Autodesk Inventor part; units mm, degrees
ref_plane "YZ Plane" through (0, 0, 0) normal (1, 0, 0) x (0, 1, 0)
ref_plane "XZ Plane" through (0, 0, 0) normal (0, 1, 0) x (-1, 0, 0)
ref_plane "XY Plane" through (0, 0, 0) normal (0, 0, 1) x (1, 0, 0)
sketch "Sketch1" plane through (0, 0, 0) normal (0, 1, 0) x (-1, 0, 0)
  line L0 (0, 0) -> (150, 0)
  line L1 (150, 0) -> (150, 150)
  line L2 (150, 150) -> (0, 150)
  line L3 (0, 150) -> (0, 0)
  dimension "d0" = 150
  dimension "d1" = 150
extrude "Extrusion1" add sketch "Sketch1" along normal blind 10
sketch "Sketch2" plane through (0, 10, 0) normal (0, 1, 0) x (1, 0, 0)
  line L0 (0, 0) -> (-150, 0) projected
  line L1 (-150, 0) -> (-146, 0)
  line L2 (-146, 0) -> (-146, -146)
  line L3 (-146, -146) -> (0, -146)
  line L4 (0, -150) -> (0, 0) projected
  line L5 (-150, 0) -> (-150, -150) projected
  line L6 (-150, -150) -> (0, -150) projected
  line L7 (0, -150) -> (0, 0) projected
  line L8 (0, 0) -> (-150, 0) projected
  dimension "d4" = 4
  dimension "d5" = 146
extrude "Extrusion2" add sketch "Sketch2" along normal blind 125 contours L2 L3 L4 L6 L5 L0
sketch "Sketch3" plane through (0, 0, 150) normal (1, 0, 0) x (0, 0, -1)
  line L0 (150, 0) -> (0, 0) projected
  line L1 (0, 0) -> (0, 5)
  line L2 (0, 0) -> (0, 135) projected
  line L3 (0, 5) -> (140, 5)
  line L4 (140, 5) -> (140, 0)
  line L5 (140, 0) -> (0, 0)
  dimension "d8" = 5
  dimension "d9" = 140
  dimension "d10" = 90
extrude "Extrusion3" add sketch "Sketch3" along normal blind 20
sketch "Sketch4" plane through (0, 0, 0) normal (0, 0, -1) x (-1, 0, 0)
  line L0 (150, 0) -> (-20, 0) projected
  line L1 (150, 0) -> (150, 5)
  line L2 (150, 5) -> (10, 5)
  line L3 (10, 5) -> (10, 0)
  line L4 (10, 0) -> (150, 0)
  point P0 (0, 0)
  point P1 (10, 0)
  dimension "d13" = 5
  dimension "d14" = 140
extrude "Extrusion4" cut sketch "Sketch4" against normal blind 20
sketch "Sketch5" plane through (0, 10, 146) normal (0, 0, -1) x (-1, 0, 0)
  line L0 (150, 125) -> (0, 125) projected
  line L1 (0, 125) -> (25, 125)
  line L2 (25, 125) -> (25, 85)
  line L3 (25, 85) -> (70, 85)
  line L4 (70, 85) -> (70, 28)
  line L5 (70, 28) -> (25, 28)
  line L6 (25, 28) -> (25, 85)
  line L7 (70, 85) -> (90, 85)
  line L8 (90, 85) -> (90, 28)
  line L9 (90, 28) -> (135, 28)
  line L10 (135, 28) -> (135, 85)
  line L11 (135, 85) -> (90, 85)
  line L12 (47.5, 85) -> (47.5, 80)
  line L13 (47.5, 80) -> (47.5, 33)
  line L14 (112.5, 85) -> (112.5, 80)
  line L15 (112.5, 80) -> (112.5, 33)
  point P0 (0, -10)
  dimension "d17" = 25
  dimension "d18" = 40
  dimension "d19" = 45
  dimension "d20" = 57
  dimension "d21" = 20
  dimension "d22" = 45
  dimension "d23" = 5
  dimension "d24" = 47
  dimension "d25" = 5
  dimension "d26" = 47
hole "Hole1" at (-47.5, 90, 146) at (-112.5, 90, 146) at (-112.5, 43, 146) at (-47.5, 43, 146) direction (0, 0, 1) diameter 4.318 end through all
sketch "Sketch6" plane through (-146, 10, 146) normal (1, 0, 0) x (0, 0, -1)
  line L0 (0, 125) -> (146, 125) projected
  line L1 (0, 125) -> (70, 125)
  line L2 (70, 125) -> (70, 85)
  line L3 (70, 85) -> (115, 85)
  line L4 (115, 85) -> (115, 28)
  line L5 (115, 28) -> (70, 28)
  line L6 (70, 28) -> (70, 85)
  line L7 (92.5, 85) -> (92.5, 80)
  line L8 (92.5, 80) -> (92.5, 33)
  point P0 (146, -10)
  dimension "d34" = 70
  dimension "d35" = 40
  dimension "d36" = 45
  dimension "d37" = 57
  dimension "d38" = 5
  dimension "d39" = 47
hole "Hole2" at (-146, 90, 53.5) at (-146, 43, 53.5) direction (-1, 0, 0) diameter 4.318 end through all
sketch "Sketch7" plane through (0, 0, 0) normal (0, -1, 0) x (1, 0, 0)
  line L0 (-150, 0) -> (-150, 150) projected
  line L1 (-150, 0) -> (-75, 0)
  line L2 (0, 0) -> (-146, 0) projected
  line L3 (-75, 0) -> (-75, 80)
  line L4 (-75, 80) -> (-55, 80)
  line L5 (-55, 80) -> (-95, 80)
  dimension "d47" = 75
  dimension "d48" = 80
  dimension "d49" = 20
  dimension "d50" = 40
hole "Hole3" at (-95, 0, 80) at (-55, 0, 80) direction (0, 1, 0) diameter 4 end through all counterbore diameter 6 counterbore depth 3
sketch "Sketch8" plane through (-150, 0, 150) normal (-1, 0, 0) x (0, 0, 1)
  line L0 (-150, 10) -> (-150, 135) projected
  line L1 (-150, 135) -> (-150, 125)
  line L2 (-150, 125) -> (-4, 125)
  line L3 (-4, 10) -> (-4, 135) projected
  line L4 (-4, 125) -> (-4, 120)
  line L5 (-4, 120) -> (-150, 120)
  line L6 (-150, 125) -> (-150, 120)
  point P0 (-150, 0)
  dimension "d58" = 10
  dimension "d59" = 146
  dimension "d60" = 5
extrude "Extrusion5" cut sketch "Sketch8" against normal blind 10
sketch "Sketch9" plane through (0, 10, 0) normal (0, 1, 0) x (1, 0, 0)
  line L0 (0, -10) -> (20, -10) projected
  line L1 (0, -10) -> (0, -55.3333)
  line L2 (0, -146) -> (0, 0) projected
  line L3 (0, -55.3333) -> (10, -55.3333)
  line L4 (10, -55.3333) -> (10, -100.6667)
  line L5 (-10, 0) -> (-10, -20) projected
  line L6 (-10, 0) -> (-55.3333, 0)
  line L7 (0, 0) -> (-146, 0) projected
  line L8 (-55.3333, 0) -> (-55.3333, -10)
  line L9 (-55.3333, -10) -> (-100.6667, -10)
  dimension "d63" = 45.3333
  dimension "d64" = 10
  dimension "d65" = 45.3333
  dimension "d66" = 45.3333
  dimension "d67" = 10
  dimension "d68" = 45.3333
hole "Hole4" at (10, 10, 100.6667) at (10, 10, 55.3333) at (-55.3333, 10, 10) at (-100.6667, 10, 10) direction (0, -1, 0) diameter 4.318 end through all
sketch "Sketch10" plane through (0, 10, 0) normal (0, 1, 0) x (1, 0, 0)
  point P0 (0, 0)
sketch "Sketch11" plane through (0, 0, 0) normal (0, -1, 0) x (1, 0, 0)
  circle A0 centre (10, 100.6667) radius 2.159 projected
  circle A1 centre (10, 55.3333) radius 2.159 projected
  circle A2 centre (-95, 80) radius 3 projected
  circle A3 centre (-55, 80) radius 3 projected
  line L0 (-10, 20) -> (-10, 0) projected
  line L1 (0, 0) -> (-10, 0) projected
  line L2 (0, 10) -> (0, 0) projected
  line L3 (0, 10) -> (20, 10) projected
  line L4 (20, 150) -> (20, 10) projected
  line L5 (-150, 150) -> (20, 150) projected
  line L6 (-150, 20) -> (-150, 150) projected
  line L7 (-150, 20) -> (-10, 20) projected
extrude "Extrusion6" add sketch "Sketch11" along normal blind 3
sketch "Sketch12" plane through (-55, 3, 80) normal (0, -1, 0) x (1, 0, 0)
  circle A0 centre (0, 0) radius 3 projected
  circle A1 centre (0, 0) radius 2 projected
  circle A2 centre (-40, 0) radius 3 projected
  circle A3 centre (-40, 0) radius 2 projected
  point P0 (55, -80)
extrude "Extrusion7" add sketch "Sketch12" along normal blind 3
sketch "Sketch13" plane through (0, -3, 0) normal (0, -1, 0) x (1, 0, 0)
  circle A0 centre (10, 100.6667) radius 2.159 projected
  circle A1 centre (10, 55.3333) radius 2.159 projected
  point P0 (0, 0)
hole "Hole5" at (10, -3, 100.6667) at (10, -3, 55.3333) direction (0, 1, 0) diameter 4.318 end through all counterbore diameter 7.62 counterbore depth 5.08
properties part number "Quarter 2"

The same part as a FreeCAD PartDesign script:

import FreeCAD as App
import Part
import Sketcher

doc = App.newDocument("Part")
params = doc.addObject("Spreadsheet::Sheet", "Params")
for row, (alias, value) in enumerate([
    ("sketch1_width", "150 mm"),
    ("pad1_length", "10 mm"),
    ("sketch2_width", "4 mm"),
    ("sketch2_width2", "146 mm"),
    ("pad2_length", "125 mm"),
    ("sketch3_width", "5 mm"),
    ("sketch3_height", "140 mm"),
    ("pad3_length", "20 mm"),
    ("sketch4_width", "140 mm"),
    ("sketch4_height", "5 mm"),
    ("pocket1_length", "20 mm"),
    ("hole_diameter", "4.318 mm"),
    ("hole2_diameter", "4.318 mm"),
    ("sketch7_diameter", "4 mm"),
    ("hole3_diameter", "4 mm"),
    ("hole3_cbore_diameter", "6 mm"),
    ("hole3_cbore_depth", "3 mm"),
    ("sketch8_width", "5 mm"),
    ("sketch8_height", "146 mm"),
    ("pocket2_length", "10 mm"),
    ("hole4_diameter", "4.318 mm"),
    ("sketch10_diameter", "6 mm"),
    ("sketch10_width", "140 mm"),
    ("sketch10_width2", "10 mm"),
    ("sketch10_width3", "20 mm"),
    ("pad4_length", "3 mm"),
    ("sketch11_diameter", "6 mm"),
    ("sketch11_diameter2", "4 mm"),
    ("pad5_length", "3 mm"),
    ("hole5_diameter", "4.318 mm"),
    ("hole5_cbore_diameter", "7.62 mm"),
    ("hole5_cbore_depth", "5.08 mm"),
], start=1):
    params.set(f"A{row}", alias)
    params.set(f"B{row}", "=" + value)
    params.setAlias(f"B{row}", alias)

body = doc.addObject("PartDesign::Body", "Body")

sketch1 = doc.addObject("Sketcher::SketchObject", "Sketch")
body.addObject(sketch1)
sketch1.AttachmentSupport = (doc.XZ_Plane, [""])
sketch1.MapMode = "FlatFace"
sketch1.addGeometry([
    Part.LineSegment(App.Vector(0, 150, 0), App.Vector(0, 0, 0)),
    Part.LineSegment(App.Vector(0, 0, 0), App.Vector(-150, 0, 0)),
    Part.LineSegment(App.Vector(-150, 0, 0), App.Vector(-150, 150, 0)),
    Part.LineSegment(App.Vector(-150, 150, 0), App.Vector(0, 150, 0)),
], False)
sketch1.addConstraint([
    Sketcher.Constraint("Coincident", 0, 2, 1, 1),
    Sketcher.Constraint("Coincident", 1, 2, 2, 1),
    Sketcher.Constraint("Coincident", 2, 2, 3, 1),
    Sketcher.Constraint("Coincident", 3, 2, 0, 1),
    Sketcher.Constraint("Vertical", 0),
    Sketcher.Constraint("Horizontal", 1),
    Sketcher.Constraint("Vertical", 2),
    Sketcher.Constraint("Horizontal", 3),
    Sketcher.Constraint("Coincident", 0, 2, -1, 1),
    Sketcher.Constraint("Equal", 3, 0),
    Sketcher.Constraint("DistanceX", 1, 2, 1, 1, 150.0),
])
sketch1.setExpression("Constraints[10]", "Params.sketch1_width")
pad1 = doc.addObject("PartDesign::Pad", "Pad")
body.addObject(pad1)
pad1.Profile = sketch1
pad1.setExpression("Length", "Params.pad1_length")
pad1.Reversed = True

sketch2 = doc.addObject("Sketcher::SketchObject", "Sketch001")
body.addObject(sketch2)
sketch2.AttachmentSupport = (doc.XZ_Plane, [""])
sketch2.MapMode = "FlatFace"
sketch2.AttachmentOffset = App.Placement(App.Vector(0, 0, -10), App.Rotation())
sketch2.addGeometry([
    Part.LineSegment(App.Vector(-146, 146, 0), App.Vector(-146, 0, 0)),
    Part.LineSegment(App.Vector(-146, 0, 0), App.Vector(-150, 0, 0)),
    Part.LineSegment(App.Vector(-150, 0, 0), App.Vector(-150, 150, 0)),
    Part.LineSegment(App.Vector(-150, 150, 0), App.Vector(0, 150, 0)),
    Part.LineSegment(App.Vector(0, 150, 0), App.Vector(0, 146, 0)),
    Part.LineSegment(App.Vector(0, 146, 0), App.Vector(-146, 146, 0)),
], False)
sketch2.addConstraint([
    Sketcher.Constraint("Coincident", 0, 2, 1, 1),
    Sketcher.Constraint("Coincident", 1, 2, 2, 1),
    Sketcher.Constraint("Coincident", 2, 2, 3, 1),
    Sketcher.Constraint("Coincident", 3, 2, 4, 1),
    Sketcher.Constraint("Coincident", 4, 2, 5, 1),
    Sketcher.Constraint("Coincident", 5, 2, 0, 1),
    Sketcher.Constraint("Vertical", 0),
    Sketcher.Constraint("Horizontal", 1),
    Sketcher.Constraint("Vertical", 2),
    Sketcher.Constraint("Horizontal", 3),
    Sketcher.Constraint("Vertical", 4),
    Sketcher.Constraint("Horizontal", 5),
    Sketcher.Constraint("PointOnObject", 0, 2, -1),
    Sketcher.Constraint("PointOnObject", 3, 2, -2),
    Sketcher.Constraint("Equal", 5, 0),
    Sketcher.Constraint("Equal", 3, 2),
    Sketcher.Constraint("DistanceX", 1, 2, 1, 1, 4.0),
    Sketcher.Constraint("DistanceX", 5, 2, 5, 1, 146.0),
])
sketch2.setExpression("Constraints[16]", "Params.sketch2_width")
sketch2.setExpression("Constraints[17]", "Params.sketch2_width2")
pad2 = doc.addObject("PartDesign::Pad", "Pad001")
body.addObject(pad2)
pad2.Profile = sketch2
pad2.setExpression("Length", "Params.pad2_length")
pad2.Reversed = True

sketch3 = doc.addObject("Sketcher::SketchObject", "Sketch002")
body.addObject(sketch3)
sketch3.AttachmentSupport = (doc.YZ_Plane, [""])
sketch3.MapMode = "FlatFace"
sketch3.addGeometry([
    Part.LineSegment(App.Vector(0, 150, 0), App.Vector(0, 10, 0)),
    Part.LineSegment(App.Vector(0, 10, 0), App.Vector(5, 10, 0)),
    Part.LineSegment(App.Vector(5, 10, 0), App.Vector(5, 150, 0)),
    Part.LineSegment(App.Vector(5, 150, 0), App.Vector(0, 150, 0)),
], False)
sketch3.addConstraint([
    Sketcher.Constraint("Coincident", 0, 2, 1, 1),
    Sketcher.Constraint("Coincident", 1, 2, 2, 1),
    Sketcher.Constraint("Coincident", 2, 2, 3, 1),
    Sketcher.Constraint("Coincident", 3, 2, 0, 1),
    Sketcher.Constraint("Vertical", 0),
    Sketcher.Constraint("Horizontal", 1),
    Sketcher.Constraint("Vertical", 2),
    Sketcher.Constraint("Horizontal", 3),
    Sketcher.Constraint("PointOnObject", 0, 2, -2),
    Sketcher.Constraint("DistanceX", 1, 1, 1, 2, 5.0),
    Sketcher.Constraint("DistanceY", 0, 2, 0, 1, 140.0),
    Sketcher.Constraint("DistanceY", -1, 1, 0, 2, 10.0),
])
sketch3.setExpression("Constraints[9]", "Params.sketch3_width")
sketch3.setExpression("Constraints[10]", "Params.sketch3_height")
pad3 = doc.addObject("PartDesign::Pad", "Pad002")
body.addObject(pad3)
pad3.Profile = sketch3
pad3.setExpression("Length", "Params.pad3_length")

sketch4 = doc.addObject("Sketcher::SketchObject", "Sketch003")
body.addObject(sketch4)
sketch4.AttachmentSupport = (doc.XY_Plane, [""])
sketch4.MapMode = "FlatFace"
sketch4.addGeometry([
    Part.LineSegment(App.Vector(-10, 0, 0), App.Vector(-150, 0, 0)),
    Part.LineSegment(App.Vector(-150, 0, 0), App.Vector(-150, 5, 0)),
    Part.LineSegment(App.Vector(-150, 5, 0), App.Vector(-10, 5, 0)),
    Part.LineSegment(App.Vector(-10, 5, 0), App.Vector(-10, 0, 0)),
], False)
sketch4.addConstraint([
    Sketcher.Constraint("Coincident", 0, 2, 1, 1),
    Sketcher.Constraint("Coincident", 1, 2, 2, 1),
    Sketcher.Constraint("Coincident", 2, 2, 3, 1),
    Sketcher.Constraint("Coincident", 3, 2, 0, 1),
    Sketcher.Constraint("Horizontal", 0),
    Sketcher.Constraint("Vertical", 1),
    Sketcher.Constraint("Horizontal", 2),
    Sketcher.Constraint("Vertical", 3),
    Sketcher.Constraint("PointOnObject", 0, 2, -1),
    Sketcher.Constraint("DistanceX", 0, 2, 0, 1, 140.0),
    Sketcher.Constraint("DistanceY", 1, 1, 1, 2, 5.0),
    Sketcher.Constraint("DistanceX", 0, 2, -1, 1, 150.0),
])
sketch4.setExpression("Constraints[9]", "Params.sketch4_width")
sketch4.setExpression("Constraints[10]", "Params.sketch4_height")
pocket1 = doc.addObject("PartDesign::Pocket", "Pocket")
body.addObject(pocket1)
pocket1.Profile = sketch4
pocket1.setExpression("Length", "Params.pocket1_length")
pocket1.Reversed = True

sketch5 = doc.addObject("Sketcher::SketchObject", "Sketch004")
body.addObject(sketch5)
sketch5.AttachmentSupport = (doc.XY_Plane, [""])
sketch5.MapMode = "FlatFace"
sketch5.AttachmentOffset = App.Placement(App.Vector(0, 0, 146), App.Rotation())
sketch5.addGeometry([
    Part.Circle(App.Vector(-47.5, 90, 0), App.Vector(0, 0, 1), 2.2),
    Part.Circle(App.Vector(-112.5, 90, 0), App.Vector(0, 0, 1), 2.2),
    Part.Circle(App.Vector(-112.5, 43, 0), App.Vector(0, 0, 1), 2.2),
    Part.Circle(App.Vector(-47.5, 43, 0), App.Vector(0, 0, 1), 2.2),
], False)
sketch5.addConstraint([
    Sketcher.Constraint("Equal", 0, 1),
    Sketcher.Constraint("Equal", 1, 2),
    Sketcher.Constraint("Equal", 2, 3),
    Sketcher.Constraint("Horizontal", 0, 3, 1, 3),
    Sketcher.Constraint("Horizontal", 2, 3, 3, 3),
    Sketcher.Constraint("Vertical", 1, 3, 2, 3),
    Sketcher.Constraint("Vertical", 0, 3, 3, 3),
    Sketcher.Constraint("Diameter", 0, 4.318),
    Sketcher.Constraint("DistanceY", -1, 1, 0, 3, 90.0),
    Sketcher.Constraint("DistanceY", -1, 1, 2, 3, 43.0),
    Sketcher.Constraint("DistanceX", 1, 3, 0, 3, 65.0),
    Sketcher.Constraint("DistanceX", 0, 3, -1, 1, 47.5),
])
doc.recompute()
hole = doc.addObject("PartDesign::Hole", "Hole")
body.addObject(hole)
hole.Profile = sketch5
hole.ThreadType = "None"
hole.setExpression("Diameter", "Params.hole_diameter")
hole.DepthType = "ThroughAll"
hole.Reversed = True

sketch6 = doc.addObject("Sketcher::SketchObject", "Sketch005")
body.addObject(sketch6)
sketch6.AttachmentSupport = (doc.YZ_Plane, [""])
sketch6.MapMode = "FlatFace"
sketch6.AttachmentOffset = App.Placement(App.Vector(0, 0, -146), App.Rotation())
sketch6.addGeometry([
    Part.Circle(App.Vector(90, 53.5, 0), App.Vector(0, 0, 1), 2.2),
    Part.Circle(App.Vector(43, 53.5, 0), App.Vector(0, 0, 1), 2.2),
], False)
sketch6.addConstraint([
    Sketcher.Constraint("Equal", 0, 1),
    Sketcher.Constraint("Horizontal", 0, 3, 1, 3),
    Sketcher.Constraint("Diameter", 0, 4.318),
    Sketcher.Constraint("DistanceX", -1, 1, 0, 3, 90.0),
    Sketcher.Constraint("DistanceX", -1, 1, 1, 3, 43.0),
    Sketcher.Constraint("DistanceY", -1, 1, 0, 3, 53.5),
])
doc.recompute()
hole2 = doc.addObject("PartDesign::Hole", "Hole001")
body.addObject(hole2)
hole2.Profile = sketch6
hole2.ThreadType = "None"
hole2.setExpression("Diameter", "Params.hole2_diameter")
hole2.DepthType = "ThroughAll"

sketch7 = doc.addObject("Sketcher::SketchObject", "Sketch006")
body.addObject(sketch7)
sketch7.AttachmentSupport = (doc.XZ_Plane, [""])
sketch7.MapMode = "FlatFace"
sketch7.addGeometry([
    Part.Circle(App.Vector(-95, 80, 0), App.Vector(0, 0, 1), 2),
    Part.Circle(App.Vector(-55, 80, 0), App.Vector(0, 0, 1), 2),
], False)
sketch7.addConstraint([
    Sketcher.Constraint("Equal", 0, 1),
    Sketcher.Constraint("Horizontal", 0, 3, 1, 3),
    Sketcher.Constraint("Diameter", 0, 4.0),
    Sketcher.Constraint("DistanceX", 0, 3, -1, 1, 95.0),
    Sketcher.Constraint("DistanceY", -1, 1, 0, 3, 80.0),
    Sketcher.Constraint("DistanceX", 1, 3, -1, 1, 55.0),
])
sketch7.setExpression("Constraints[2]", "Params.sketch7_diameter")
doc.recompute()
hole3 = doc.addObject("PartDesign::Hole", "Hole002")
body.addObject(hole3)
hole3.Profile = sketch7
hole3.ThreadType = "None"
hole3.setExpression("Diameter", "Params.hole3_diameter")
hole3.DepthType = "ThroughAll"
hole3.HoleCutType = "Counterbore"
hole3.setExpression("HoleCutDiameter", "Params.hole3_cbore_diameter")
hole3.setExpression("HoleCutDepth", "Params.hole3_cbore_depth")

sketch8 = doc.addObject("Sketcher::SketchObject", "Sketch007")
body.addObject(sketch8)
sketch8.AttachmentSupport = (doc.YZ_Plane, [""])
sketch8.MapMode = "FlatFace"
sketch8.AttachmentOffset = App.Placement(App.Vector(0, 0, -150), App.Rotation())
sketch8.addGeometry([
    Part.LineSegment(App.Vector(125, 0, 0), App.Vector(120, 0, 0)),
    Part.LineSegment(App.Vector(120, 0, 0), App.Vector(120, 146, 0)),
    Part.LineSegment(App.Vector(120, 146, 0), App.Vector(125, 146, 0)),
    Part.LineSegment(App.Vector(125, 146, 0), App.Vector(125, 0, 0)),
], False)
sketch8.addConstraint([
    Sketcher.Constraint("Coincident", 0, 2, 1, 1),
    Sketcher.Constraint("Coincident", 1, 2, 2, 1),
    Sketcher.Constraint("Coincident", 2, 2, 3, 1),
    Sketcher.Constraint("Coincident", 3, 2, 0, 1),
    Sketcher.Constraint("Horizontal", 0),
    Sketcher.Constraint("Vertical", 1),
    Sketcher.Constraint("Horizontal", 2),
    Sketcher.Constraint("Vertical", 3),
    Sketcher.Constraint("PointOnObject", 0, 2, -1),
    Sketcher.Constraint("DistanceX", 0, 2, 0, 1, 5.0),
    Sketcher.Constraint("DistanceY", 1, 1, 1, 2, 146.0),
    Sketcher.Constraint("DistanceX", -1, 1, 0, 2, 120.0),
])
sketch8.setExpression("Constraints[9]", "Params.sketch8_width")
sketch8.setExpression("Constraints[10]", "Params.sketch8_height")
pocket2 = doc.addObject("PartDesign::Pocket", "Pocket001")
body.addObject(pocket2)
pocket2.Profile = sketch8
pocket2.setExpression("Length", "Params.pocket2_length")
pocket2.Reversed = True

sketch9 = doc.addObject("Sketcher::SketchObject", "Sketch008")
body.addObject(sketch9)
sketch9.AttachmentSupport = (doc.XZ_Plane, [""])
sketch9.MapMode = "FlatFace"
sketch9.AttachmentOffset = App.Placement(App.Vector(0, 0, -10), App.Rotation())
sketch9.addGeometry([
    Part.Circle(App.Vector(10, 100.7, 0), App.Vector(0, 0, 1), 2.2),
    Part.Circle(App.Vector(10, 55.3, 0), App.Vector(0, 0, 1), 2.2),
    Part.Circle(App.Vector(-55.3, 10, 0), App.Vector(0, 0, 1), 2.2),
    Part.Circle(App.Vector(-100.7, 10, 0), App.Vector(0, 0, 1), 2.2),
], False)
sketch9.addConstraint([
    Sketcher.Constraint("Equal", 0, 1),
    Sketcher.Constraint("Equal", 1, 2),
    Sketcher.Constraint("Equal", 2, 3),
    Sketcher.Constraint("Horizontal", 2, 3, 3, 3),
    Sketcher.Constraint("Vertical", 0, 3, 1, 3),
    Sketcher.Constraint("Diameter", 0, 4.318),
    Sketcher.Constraint("DistanceX", -1, 1, 0, 3, 10.0),
    Sketcher.Constraint("DistanceY", -1, 1, 2, 3, 10.0),
    Sketcher.Constraint("DistanceY", -1, 1, 0, 3, 100.6667),
    Sketcher.Constraint("DistanceY", -1, 1, 1, 3, 55.3333),
    Sketcher.Constraint("DistanceX", 2, 3, -1, 1, 55.3333),
    Sketcher.Constraint("DistanceX", 3, 3, -1, 1, 100.6667),
])
doc.recompute()
hole4 = doc.addObject("PartDesign::Hole", "Hole003")
body.addObject(hole4)
hole4.Profile = sketch9
hole4.ThreadType = "None"
hole4.setExpression("Diameter", "Params.hole4_diameter")
hole4.DepthType = "ThroughAll"
hole4.Reversed = True

sketch10 = doc.addObject("Sketcher::SketchObject", "Sketch009")
body.addObject(sketch10)
sketch10.AttachmentSupport = (doc.XZ_Plane, [""])
sketch10.MapMode = "FlatFace"
sketch10.addGeometry([
    Part.LineSegment(App.Vector(-150, 20, 0), App.Vector(-10, 20, 0)),
    Part.LineSegment(App.Vector(-10, 20, 0), App.Vector(-10, 0, 0)),
    Part.LineSegment(App.Vector(-10, 0, 0), App.Vector(0, 0, 0)),
    Part.LineSegment(App.Vector(0, 0, 0), App.Vector(0, 10, 0)),
    Part.LineSegment(App.Vector(0, 10, 0), App.Vector(20, 10, 0)),
    Part.LineSegment(App.Vector(20, 10, 0), App.Vector(20, 150, 0)),
    Part.LineSegment(App.Vector(20, 150, 0), App.Vector(-150, 150, 0)),
    Part.LineSegment(App.Vector(-150, 150, 0), App.Vector(-150, 20, 0)),
    Part.Circle(App.Vector(10, 55.3, 0), App.Vector(0, 0, 1), 2.2),
    Part.Circle(App.Vector(-95, 80, 0), App.Vector(0, 0, 1), 3),
    Part.Circle(App.Vector(-55, 80, 0), App.Vector(0, 0, 1), 3),
    Part.Circle(App.Vector(10, 100.7, 0), App.Vector(0, 0, 1), 2.2),
], False)
sketch10.addConstraint([
    Sketcher.Constraint("Coincident", 0, 2, 1, 1),
    Sketcher.Constraint("Coincident", 1, 2, 2, 1),
    Sketcher.Constraint("Coincident", 2, 2, 3, 1),
    Sketcher.Constraint("Coincident", 3, 2, 4, 1),
    Sketcher.Constraint("Coincident", 4, 2, 5, 1),
    Sketcher.Constraint("Coincident", 5, 2, 6, 1),
    Sketcher.Constraint("Coincident", 6, 2, 7, 1),
    Sketcher.Constraint("Coincident", 7, 2, 0, 1),
    Sketcher.Constraint("Horizontal", 0),
    Sketcher.Constraint("Vertical", 1),
    Sketcher.Constraint("Horizontal", 2),
    Sketcher.Constraint("Vertical", 3),
    Sketcher.Constraint("Horizontal", 4),
    Sketcher.Constraint("Vertical", 5),
    Sketcher.Constraint("Horizontal", 6),
    Sketcher.Constraint("Vertical", 7),
    Sketcher.Constraint("Coincident", 2, 2, -1, 1),
    Sketcher.Constraint("Equal", 9, 10),
    Sketcher.Constraint("Equal", 8, 11),
    Sketcher.Constraint("Horizontal", 9, 3, 10, 3),
    Sketcher.Constraint("Vertical", 8, 3, 11, 3),
    Sketcher.Constraint("Equal", 4, 1),
    Sketcher.Constraint("Equal", 2, 3),
    Sketcher.Constraint("Equal", 0, 5),
    Sketcher.Constraint("Diameter", 9, 6.0),
    Sketcher.Constraint("DistanceX", 0, 1, 0, 2, 140.0),
    Sketcher.Constraint("DistanceX", 2, 1, 2, 2, 10.0),
    Sketcher.Constraint("DistanceX", 4, 1, 4, 2, 20.0),
    Sketcher.Constraint("Diameter", 8, 4.318),
    Sketcher.Constraint("DistanceX", -1, 1, 8, 3, 10.0),
    Sketcher.Constraint("DistanceX", 9, 3, -1, 1, 95.0),
    Sketcher.Constraint("DistanceY", -1, 1, 9, 3, 80.0),
    Sketcher.Constraint("DistanceX", 10, 3, -1, 1, 55.0),
    Sketcher.Constraint("DistanceY", -1, 1, 8, 3, 55.3333),
    Sketcher.Constraint("DistanceY", -1, 1, 11, 3, 100.6667),
])
sketch10.setExpression("Constraints[24]", "Params.sketch10_diameter")
sketch10.setExpression("Constraints[25]", "Params.sketch10_width")
sketch10.setExpression("Constraints[26]", "Params.sketch10_width2")
sketch10.setExpression("Constraints[27]", "Params.sketch10_width3")
pad4 = doc.addObject("PartDesign::Pad", "Pad003")
body.addObject(pad4)
pad4.Profile = sketch10
pad4.setExpression("Length", "Params.pad4_length")

sketch11 = doc.addObject("Sketcher::SketchObject", "Sketch010")
body.addObject(sketch11)
sketch11.AttachmentSupport = (doc.XZ_Plane, [""])
sketch11.MapMode = "FlatFace"
sketch11.AttachmentOffset = App.Placement(App.Vector(0, 0, -3), App.Rotation())
sketch11.addGeometry([
    Part.Circle(App.Vector(-55, 80, 0), App.Vector(0, 0, 1), 3),
    Part.Circle(App.Vector(-55, 80, 0), App.Vector(0, 0, 1), 2),
    Part.Circle(App.Vector(-95, 80, 0), App.Vector(0, 0, 1), 3),
    Part.Circle(App.Vector(-95, 80, 0), App.Vector(0, 0, 1), 2),
], False)
sketch11.addConstraint([
    Sketcher.Constraint("Coincident", 1, 3, 0, 3),
    Sketcher.Constraint("Coincident", 3, 3, 2, 3),
    Sketcher.Constraint("Equal", 0, 2),
    Sketcher.Constraint("Equal", 1, 3),
    Sketcher.Constraint("Horizontal", 1, 3, 2, 3),
    Sketcher.Constraint("Diameter", 0, 6.0),
    Sketcher.Constraint("Diameter", 1, 4.0),
    Sketcher.Constraint("DistanceX", 0, 3, -1, 1, 55.0),
    Sketcher.Constraint("DistanceY", -1, 1, 0, 3, 80.0),
    Sketcher.Constraint("DistanceX", 2, 3, -1, 1, 95.0),
])
sketch11.setExpression("Constraints[5]", "Params.sketch11_diameter")
sketch11.setExpression("Constraints[6]", "Params.sketch11_diameter2")
pad5 = doc.addObject("PartDesign::Pad", "Pad004")
body.addObject(pad5)
pad5.Profile = sketch11
pad5.setExpression("Length", "Params.pad5_length")

sketch12 = doc.addObject("Sketcher::SketchObject", "Sketch011")
body.addObject(sketch12)
sketch12.AttachmentSupport = (doc.XZ_Plane, [""])
sketch12.MapMode = "FlatFace"
sketch12.AttachmentOffset = App.Placement(App.Vector(0, 0, 3), App.Rotation())
sketch12.addGeometry([
    Part.Circle(App.Vector(10, 100.7, 0), App.Vector(0, 0, 1), 2.2),
    Part.Circle(App.Vector(10, 55.3, 0), App.Vector(0, 0, 1), 2.2),
], False)
sketch12.addConstraint([
    Sketcher.Constraint("Equal", 0, 1),
    Sketcher.Constraint("Vertical", 0, 3, 1, 3),
    Sketcher.Constraint("Diameter", 0, 4.318),
    Sketcher.Constraint("DistanceX", -1, 1, 0, 3, 10.0),
    Sketcher.Constraint("DistanceY", -1, 1, 0, 3, 100.6667),
    Sketcher.Constraint("DistanceY", -1, 1, 1, 3, 55.3333),
])
doc.recompute()
hole5 = doc.addObject("PartDesign::Hole", "Hole004")
body.addObject(hole5)
hole5.Profile = sketch12
hole5.ThreadType = "None"
hole5.setExpression("Diameter", "Params.hole5_diameter")
hole5.DepthType = "ThroughAll"
hole5.HoleCutType = "Counterbore"
hole5.setExpression("HoleCutDiameter", "Params.hole5_cbore_diameter")
hole5.setExpression("HoleCutDepth", "Params.hole5_cbore_depth")

doc.recompute()
